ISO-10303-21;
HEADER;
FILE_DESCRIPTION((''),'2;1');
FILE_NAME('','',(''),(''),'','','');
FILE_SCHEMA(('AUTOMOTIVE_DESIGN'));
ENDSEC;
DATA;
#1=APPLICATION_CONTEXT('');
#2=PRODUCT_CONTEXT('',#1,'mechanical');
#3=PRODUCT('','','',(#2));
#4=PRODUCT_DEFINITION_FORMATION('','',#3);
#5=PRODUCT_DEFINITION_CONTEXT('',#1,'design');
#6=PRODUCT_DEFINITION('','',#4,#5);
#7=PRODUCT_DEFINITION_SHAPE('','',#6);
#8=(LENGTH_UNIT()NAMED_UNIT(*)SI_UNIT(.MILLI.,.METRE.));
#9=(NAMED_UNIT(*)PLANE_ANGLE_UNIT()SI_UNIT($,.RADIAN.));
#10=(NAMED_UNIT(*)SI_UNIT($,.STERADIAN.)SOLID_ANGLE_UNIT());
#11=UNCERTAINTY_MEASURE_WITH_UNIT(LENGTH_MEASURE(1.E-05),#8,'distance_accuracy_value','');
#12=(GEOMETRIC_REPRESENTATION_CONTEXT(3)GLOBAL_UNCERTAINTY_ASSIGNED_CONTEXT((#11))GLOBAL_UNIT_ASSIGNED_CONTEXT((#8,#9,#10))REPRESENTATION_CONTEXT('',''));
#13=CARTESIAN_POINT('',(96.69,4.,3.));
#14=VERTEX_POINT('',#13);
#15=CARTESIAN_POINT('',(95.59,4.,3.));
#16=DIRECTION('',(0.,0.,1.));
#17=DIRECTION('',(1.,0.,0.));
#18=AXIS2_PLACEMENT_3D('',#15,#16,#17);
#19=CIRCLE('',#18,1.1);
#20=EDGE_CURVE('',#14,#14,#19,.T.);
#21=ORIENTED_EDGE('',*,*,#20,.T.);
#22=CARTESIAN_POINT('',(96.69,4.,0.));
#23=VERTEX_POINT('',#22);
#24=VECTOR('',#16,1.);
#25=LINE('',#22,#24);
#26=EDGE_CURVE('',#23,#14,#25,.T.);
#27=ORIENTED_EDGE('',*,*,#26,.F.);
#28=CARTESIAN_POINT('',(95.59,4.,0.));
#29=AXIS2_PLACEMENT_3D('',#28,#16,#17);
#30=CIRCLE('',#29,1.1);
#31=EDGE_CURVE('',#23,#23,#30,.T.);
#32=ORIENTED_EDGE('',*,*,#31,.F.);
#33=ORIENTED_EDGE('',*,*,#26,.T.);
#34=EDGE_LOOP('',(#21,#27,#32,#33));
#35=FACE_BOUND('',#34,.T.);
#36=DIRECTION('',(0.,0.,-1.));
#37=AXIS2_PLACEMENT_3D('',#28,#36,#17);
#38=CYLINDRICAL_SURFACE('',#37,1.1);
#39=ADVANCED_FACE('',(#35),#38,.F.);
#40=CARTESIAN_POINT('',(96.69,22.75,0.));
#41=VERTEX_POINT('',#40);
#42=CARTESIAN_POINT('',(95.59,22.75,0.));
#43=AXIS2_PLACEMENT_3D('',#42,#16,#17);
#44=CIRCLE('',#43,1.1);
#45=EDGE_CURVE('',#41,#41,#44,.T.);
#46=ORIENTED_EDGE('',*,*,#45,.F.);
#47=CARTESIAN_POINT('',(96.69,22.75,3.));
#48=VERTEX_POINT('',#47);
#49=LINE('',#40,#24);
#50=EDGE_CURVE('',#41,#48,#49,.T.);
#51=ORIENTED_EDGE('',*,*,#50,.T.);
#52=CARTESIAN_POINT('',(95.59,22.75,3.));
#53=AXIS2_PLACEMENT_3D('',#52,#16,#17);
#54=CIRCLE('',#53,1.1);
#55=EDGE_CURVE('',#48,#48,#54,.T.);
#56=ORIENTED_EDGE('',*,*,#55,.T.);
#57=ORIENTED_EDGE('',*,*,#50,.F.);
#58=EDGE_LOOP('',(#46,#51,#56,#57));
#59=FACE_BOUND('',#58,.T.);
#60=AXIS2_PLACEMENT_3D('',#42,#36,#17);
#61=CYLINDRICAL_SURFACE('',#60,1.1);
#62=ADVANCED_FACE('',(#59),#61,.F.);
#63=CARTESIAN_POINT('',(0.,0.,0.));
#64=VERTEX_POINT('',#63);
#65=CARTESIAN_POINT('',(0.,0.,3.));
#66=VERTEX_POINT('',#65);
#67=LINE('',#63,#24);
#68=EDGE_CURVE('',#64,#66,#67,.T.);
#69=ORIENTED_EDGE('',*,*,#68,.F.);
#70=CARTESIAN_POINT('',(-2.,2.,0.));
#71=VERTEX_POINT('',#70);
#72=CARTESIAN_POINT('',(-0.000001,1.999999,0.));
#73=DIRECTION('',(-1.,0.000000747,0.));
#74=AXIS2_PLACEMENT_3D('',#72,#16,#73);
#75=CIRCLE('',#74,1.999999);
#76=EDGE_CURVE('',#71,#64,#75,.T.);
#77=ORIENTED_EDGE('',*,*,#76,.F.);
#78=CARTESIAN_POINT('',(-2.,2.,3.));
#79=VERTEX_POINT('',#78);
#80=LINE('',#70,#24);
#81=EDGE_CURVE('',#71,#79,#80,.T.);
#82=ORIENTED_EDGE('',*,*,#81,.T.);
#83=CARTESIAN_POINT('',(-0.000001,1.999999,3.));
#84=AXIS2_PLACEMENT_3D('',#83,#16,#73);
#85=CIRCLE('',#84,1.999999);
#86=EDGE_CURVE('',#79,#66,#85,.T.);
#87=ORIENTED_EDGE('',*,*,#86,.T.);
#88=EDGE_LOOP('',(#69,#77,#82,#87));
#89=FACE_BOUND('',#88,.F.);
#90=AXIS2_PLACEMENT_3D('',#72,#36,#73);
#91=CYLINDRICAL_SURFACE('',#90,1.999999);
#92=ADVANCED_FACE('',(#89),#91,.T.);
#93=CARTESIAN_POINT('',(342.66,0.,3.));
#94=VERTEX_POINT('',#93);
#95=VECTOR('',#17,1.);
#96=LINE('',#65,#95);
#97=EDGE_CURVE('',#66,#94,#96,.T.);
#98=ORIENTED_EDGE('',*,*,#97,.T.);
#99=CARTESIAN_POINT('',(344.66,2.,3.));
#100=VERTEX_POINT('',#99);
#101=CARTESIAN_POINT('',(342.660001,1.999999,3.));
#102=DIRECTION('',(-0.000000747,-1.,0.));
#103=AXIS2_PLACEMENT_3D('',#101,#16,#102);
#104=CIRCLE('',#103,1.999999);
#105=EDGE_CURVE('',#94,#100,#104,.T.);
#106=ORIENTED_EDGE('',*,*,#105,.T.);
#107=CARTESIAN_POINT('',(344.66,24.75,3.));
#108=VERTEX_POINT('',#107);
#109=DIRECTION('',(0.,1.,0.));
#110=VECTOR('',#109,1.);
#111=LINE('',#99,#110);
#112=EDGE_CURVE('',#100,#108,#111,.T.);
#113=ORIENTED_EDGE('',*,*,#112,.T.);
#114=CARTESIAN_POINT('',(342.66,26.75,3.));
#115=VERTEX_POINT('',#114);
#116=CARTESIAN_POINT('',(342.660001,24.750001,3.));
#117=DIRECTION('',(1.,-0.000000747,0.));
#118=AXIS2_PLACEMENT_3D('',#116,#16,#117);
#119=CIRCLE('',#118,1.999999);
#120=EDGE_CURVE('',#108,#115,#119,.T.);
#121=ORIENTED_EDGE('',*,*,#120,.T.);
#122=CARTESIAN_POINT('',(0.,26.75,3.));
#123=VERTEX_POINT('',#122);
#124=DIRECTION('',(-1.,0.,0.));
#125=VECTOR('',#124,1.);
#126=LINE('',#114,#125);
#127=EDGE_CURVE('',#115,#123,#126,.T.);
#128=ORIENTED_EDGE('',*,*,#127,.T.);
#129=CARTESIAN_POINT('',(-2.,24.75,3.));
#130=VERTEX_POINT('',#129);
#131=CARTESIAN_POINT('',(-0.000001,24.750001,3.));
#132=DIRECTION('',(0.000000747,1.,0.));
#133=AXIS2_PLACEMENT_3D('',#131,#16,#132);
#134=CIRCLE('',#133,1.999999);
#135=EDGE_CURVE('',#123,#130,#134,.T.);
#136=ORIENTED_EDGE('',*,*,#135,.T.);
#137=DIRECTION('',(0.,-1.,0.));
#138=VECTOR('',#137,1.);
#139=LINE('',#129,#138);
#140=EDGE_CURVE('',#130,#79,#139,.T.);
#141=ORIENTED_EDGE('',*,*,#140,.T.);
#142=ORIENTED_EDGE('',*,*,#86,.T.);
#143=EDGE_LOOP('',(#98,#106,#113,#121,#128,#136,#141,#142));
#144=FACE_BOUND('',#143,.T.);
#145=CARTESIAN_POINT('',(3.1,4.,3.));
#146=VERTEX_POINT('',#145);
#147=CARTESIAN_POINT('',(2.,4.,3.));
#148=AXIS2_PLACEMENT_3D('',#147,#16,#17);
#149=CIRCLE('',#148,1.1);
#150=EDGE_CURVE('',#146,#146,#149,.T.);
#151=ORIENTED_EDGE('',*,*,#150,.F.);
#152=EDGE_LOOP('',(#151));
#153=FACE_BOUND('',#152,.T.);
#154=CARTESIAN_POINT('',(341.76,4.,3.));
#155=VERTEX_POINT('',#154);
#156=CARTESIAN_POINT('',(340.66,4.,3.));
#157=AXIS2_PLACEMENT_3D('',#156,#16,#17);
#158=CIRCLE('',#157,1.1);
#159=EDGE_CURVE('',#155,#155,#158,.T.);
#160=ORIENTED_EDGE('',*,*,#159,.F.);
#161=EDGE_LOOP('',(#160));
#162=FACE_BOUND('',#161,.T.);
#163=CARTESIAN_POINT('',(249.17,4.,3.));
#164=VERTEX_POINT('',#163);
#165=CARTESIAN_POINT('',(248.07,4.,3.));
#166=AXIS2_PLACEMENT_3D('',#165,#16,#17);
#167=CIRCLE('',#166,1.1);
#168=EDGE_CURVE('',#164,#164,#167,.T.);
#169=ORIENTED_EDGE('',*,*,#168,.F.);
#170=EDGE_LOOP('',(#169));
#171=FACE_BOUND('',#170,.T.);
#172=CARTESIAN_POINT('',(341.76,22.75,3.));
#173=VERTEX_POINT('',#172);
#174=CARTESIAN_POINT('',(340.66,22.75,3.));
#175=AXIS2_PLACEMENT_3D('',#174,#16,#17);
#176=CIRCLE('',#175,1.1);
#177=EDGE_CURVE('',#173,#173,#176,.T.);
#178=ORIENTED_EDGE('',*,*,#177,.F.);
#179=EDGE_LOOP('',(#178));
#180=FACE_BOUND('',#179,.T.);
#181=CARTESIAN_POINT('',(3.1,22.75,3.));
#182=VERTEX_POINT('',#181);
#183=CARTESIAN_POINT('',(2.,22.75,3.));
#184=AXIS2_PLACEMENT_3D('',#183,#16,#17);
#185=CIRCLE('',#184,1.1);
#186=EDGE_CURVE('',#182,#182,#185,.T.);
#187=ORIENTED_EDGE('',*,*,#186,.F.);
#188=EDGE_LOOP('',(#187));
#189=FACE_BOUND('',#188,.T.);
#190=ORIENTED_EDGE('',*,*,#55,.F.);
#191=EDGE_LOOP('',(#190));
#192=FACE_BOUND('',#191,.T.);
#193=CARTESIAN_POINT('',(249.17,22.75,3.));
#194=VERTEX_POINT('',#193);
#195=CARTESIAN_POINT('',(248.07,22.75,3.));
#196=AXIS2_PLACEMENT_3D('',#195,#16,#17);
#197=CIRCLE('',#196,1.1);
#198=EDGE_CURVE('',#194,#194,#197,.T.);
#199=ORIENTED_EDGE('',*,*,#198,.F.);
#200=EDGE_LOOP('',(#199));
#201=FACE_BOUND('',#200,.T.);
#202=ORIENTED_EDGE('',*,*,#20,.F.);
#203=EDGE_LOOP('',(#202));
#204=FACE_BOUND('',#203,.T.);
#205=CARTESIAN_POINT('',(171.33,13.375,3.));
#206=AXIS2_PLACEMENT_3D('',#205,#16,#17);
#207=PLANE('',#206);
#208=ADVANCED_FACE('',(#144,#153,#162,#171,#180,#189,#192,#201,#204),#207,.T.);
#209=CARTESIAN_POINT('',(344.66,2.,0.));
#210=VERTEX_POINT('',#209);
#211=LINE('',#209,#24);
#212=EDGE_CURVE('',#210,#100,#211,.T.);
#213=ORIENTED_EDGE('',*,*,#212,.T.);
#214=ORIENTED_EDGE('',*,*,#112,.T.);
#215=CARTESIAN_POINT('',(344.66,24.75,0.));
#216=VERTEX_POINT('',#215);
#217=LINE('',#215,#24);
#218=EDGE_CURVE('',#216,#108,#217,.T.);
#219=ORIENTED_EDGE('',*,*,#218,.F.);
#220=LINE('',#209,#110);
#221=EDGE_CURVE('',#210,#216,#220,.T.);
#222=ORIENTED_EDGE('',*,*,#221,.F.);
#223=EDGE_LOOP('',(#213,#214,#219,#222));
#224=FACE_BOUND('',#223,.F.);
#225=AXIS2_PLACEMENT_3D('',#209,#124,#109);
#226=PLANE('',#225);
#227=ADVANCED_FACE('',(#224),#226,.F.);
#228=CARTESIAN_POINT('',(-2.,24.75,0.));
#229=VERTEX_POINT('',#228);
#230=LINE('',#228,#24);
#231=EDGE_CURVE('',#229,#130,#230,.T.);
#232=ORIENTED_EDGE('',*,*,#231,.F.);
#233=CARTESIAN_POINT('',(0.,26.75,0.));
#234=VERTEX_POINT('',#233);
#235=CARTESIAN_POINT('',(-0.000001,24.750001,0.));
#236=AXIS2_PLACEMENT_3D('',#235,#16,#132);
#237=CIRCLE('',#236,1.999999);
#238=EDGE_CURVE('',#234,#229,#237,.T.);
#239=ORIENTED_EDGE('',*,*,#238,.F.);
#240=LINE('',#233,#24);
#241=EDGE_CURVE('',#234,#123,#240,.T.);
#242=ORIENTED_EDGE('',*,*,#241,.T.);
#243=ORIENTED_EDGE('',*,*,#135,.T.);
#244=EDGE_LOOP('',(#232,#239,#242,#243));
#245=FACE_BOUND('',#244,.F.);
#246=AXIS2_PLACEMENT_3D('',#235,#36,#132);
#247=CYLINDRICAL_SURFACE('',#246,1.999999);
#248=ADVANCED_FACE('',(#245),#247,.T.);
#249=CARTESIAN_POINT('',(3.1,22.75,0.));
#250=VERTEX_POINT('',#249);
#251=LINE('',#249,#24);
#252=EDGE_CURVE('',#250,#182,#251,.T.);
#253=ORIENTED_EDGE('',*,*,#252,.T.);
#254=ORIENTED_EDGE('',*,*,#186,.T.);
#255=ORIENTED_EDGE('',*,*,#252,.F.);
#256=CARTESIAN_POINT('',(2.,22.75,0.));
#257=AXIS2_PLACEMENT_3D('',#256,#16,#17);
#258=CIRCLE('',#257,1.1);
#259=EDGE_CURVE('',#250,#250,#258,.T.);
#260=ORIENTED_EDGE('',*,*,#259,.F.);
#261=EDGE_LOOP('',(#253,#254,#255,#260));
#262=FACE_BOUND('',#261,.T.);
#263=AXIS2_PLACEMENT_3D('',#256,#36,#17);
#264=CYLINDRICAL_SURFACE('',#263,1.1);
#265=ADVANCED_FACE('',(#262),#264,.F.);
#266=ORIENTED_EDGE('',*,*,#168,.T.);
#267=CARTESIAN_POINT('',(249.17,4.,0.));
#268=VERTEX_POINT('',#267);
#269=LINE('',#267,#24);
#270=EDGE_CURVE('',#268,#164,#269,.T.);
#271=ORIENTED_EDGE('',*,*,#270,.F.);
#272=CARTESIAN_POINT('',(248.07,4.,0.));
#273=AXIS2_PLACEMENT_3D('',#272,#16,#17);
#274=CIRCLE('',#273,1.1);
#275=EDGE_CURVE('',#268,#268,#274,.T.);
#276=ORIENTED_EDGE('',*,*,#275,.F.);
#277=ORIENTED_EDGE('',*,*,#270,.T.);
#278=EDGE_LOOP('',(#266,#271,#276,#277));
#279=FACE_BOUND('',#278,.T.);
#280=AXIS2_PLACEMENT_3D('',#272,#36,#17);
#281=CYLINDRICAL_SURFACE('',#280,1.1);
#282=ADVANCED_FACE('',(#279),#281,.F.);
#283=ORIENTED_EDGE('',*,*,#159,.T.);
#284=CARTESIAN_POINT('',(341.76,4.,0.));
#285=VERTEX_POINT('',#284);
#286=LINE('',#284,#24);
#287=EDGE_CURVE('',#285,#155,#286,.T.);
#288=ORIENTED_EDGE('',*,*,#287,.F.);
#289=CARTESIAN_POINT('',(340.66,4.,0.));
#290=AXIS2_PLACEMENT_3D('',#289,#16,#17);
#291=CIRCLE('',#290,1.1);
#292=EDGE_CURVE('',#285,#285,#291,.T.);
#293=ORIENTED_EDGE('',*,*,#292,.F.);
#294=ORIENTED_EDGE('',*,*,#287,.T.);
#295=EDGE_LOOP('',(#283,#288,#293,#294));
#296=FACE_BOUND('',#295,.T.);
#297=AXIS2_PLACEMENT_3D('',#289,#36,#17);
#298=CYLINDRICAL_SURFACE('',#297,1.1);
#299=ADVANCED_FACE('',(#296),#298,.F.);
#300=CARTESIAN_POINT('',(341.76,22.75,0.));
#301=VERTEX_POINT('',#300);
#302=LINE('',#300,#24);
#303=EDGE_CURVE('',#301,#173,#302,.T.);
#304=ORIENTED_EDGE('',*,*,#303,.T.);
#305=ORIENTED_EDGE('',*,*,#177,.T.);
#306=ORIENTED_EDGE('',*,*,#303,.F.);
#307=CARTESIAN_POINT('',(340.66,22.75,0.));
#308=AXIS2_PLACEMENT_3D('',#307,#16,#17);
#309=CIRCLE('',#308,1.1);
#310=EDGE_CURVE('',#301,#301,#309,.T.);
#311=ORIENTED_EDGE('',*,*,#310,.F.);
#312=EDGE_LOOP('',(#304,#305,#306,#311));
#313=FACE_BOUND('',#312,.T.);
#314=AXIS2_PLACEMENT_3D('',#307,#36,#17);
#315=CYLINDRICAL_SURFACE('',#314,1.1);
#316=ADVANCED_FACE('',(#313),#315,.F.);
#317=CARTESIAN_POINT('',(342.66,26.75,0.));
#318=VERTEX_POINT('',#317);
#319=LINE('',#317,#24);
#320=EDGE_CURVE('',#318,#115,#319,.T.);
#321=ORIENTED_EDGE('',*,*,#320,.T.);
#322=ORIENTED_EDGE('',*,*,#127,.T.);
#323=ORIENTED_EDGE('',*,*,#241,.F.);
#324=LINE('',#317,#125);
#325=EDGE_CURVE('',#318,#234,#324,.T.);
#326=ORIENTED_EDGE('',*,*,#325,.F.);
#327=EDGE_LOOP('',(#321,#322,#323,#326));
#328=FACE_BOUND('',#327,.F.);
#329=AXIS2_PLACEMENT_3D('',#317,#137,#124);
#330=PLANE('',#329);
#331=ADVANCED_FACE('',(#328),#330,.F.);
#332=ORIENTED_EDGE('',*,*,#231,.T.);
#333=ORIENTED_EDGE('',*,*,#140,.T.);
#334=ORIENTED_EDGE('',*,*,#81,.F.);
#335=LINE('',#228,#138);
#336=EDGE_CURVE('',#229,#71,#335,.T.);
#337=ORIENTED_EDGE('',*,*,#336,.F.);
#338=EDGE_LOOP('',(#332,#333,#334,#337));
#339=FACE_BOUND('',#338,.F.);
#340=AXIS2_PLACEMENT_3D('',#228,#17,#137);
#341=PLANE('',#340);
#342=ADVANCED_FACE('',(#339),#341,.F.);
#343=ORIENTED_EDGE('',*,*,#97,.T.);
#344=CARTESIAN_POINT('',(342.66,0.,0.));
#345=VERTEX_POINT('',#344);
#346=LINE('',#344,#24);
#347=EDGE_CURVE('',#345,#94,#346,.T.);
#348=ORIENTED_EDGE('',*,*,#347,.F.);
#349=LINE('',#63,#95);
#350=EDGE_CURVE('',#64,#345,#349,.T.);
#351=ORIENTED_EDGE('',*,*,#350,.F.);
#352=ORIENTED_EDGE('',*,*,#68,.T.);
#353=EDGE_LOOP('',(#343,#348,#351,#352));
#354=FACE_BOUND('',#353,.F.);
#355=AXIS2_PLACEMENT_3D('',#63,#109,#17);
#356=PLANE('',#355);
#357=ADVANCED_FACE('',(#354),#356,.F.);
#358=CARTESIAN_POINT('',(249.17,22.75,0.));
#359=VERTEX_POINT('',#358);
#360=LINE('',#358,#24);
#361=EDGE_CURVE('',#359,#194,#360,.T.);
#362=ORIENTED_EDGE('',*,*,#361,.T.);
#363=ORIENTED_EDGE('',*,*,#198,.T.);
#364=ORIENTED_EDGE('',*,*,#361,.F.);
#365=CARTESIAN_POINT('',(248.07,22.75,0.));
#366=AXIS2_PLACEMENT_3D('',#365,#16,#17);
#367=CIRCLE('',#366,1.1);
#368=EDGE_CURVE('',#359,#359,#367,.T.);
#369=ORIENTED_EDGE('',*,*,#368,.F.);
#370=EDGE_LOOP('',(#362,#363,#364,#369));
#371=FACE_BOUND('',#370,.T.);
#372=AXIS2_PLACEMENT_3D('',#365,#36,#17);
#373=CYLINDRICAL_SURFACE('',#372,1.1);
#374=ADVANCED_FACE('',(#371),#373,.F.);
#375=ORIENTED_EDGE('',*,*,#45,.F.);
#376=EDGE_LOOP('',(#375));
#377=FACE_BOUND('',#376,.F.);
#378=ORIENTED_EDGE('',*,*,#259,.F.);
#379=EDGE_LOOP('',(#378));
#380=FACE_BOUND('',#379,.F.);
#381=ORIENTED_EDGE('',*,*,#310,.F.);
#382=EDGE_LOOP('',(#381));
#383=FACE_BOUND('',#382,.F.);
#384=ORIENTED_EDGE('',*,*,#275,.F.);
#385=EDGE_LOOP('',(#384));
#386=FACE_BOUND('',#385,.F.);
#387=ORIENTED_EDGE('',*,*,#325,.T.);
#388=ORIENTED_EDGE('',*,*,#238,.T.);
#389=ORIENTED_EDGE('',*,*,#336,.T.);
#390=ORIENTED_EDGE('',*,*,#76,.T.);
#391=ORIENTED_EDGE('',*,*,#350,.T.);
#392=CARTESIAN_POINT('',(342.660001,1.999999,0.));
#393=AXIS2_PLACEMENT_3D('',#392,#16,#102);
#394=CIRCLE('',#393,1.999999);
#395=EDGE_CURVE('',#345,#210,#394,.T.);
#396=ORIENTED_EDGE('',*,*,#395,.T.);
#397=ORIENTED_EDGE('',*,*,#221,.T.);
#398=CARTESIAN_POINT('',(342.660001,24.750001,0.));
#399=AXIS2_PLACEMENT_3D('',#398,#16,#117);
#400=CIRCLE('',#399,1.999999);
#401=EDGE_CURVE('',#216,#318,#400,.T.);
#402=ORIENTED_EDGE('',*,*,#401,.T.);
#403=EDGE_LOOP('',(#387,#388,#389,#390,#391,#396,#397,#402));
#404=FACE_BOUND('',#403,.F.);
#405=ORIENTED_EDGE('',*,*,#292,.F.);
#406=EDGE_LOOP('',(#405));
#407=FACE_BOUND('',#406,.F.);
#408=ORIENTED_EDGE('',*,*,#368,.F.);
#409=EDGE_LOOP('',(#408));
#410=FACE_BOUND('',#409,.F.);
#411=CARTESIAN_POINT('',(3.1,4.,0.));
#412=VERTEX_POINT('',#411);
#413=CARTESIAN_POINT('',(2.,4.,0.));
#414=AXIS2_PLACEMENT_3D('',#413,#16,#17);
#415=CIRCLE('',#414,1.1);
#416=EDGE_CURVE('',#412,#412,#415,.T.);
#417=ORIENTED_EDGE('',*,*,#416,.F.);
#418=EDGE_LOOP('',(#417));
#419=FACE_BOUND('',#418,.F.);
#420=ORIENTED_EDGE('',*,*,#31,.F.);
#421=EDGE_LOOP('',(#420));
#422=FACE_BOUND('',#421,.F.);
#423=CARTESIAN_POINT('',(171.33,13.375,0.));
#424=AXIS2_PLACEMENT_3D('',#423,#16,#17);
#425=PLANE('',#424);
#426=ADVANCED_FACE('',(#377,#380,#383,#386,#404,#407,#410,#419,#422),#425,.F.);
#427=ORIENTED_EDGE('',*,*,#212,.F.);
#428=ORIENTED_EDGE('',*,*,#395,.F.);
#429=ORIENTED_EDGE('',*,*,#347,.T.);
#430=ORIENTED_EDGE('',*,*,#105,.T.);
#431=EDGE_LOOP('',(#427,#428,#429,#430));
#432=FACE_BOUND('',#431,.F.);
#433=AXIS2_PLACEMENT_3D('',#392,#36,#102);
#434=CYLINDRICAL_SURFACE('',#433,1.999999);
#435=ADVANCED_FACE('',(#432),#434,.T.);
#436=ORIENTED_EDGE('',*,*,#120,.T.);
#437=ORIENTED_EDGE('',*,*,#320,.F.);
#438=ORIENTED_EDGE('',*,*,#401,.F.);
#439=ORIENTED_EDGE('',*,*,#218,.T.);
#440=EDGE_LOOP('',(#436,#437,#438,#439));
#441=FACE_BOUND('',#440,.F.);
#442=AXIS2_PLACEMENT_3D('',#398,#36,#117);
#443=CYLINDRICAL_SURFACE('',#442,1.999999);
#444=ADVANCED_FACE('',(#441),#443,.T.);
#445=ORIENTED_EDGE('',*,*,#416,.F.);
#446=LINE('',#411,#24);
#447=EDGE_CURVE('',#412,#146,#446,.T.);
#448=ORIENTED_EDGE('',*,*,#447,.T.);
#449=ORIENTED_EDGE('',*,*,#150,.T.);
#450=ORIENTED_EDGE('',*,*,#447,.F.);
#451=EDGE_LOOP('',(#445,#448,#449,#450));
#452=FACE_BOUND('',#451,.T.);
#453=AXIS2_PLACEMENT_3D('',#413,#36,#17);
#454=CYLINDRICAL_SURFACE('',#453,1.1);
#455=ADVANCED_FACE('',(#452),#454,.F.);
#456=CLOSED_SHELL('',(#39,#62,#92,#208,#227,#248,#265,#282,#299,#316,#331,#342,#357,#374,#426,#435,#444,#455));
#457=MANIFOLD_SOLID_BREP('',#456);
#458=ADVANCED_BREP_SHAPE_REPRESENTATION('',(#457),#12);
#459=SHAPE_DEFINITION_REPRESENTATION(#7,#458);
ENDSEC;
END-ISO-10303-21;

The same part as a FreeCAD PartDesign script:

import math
import FreeCAD as App
import Part
import Sketcher

doc = App.newDocument("Part")
params = doc.addObject("Spreadsheet::Sheet", "Params")
for row, (alias, value) in enumerate([
    ("sketch1_radius", "1.999999 mm"),
    ("sketch1_diameter", "2.2 mm"),
    ("sketch1_width", "342.66 mm"),
    ("sketch1_height", "22.75 mm"),
    ("pad1_length", "3 mm"),
], start=1):
    params.set(f"A{row}", alias)
    params.set(f"B{row}", "=" + value)
    params.setAlias(f"B{row}", alias)

body = doc.addObject("PartDesign::Body", "Body")

sketch1 = doc.addObject("Sketcher::SketchObject", "Sketch")
body.addObject(sketch1)
sketch1.AttachmentSupport = (doc.XY_Plane, [""])
sketch1.MapMode = "FlatFace"
sketch1.addGeometry([
    Part.LineSegment(App.Vector(0, 0, 0), App.Vector(342.7, 0, 0)),
    Part.ArcOfCircle(Part.Circle(App.Vector(342.7, 2, 0), App.Vector(0, 0, 1), 2), math.radians(-90), math.radians(0)),
    Part.LineSegment(App.Vector(344.7, 2, 0), App.Vector(344.7, 24.8, 0)),
    Part.ArcOfCircle(Part.Circle(App.Vector(342.7, 24.8, 0), App.Vector(0, 0, 1), 2), math.radians(0), math.radians(90)),
    Part.LineSegment(App.Vector(342.7, 26.8, 0), App.Vector(0, 26.8, 0)),
    Part.ArcOfCircle(Part.Circle(App.Vector(0, 24.8, 0), App.Vector(0, 0, 1), 2), math.radians(90), math.radians(180)),
    Part.LineSegment(App.Vector(-2, 24.8, 0), App.Vector(-2, 2, 0)),
    Part.ArcOfCircle(Part.Circle(App.Vector(0, 2, 0), App.Vector(0, 0, 1), 2), math.radians(180), math.radians(270)),
    Part.Circle(App.Vector(2, 4, 0), App.Vector(0, 0, 1), 1.1),
    Part.Circle(App.Vector(95.6, 4, 0), App.Vector(0, 0, 1), 1.1),
    Part.Circle(App.Vector(248.1, 4, 0), App.Vector(0, 0, 1), 1.1),
    Part.Circle(App.Vector(340.7, 4, 0), App.Vector(0, 0, 1), 1.1),
    Part.Circle(App.Vector(2, 22.8, 0), App.Vector(0, 0, 1), 1.1),
    Part.Circle(App.Vector(95.6, 22.8, 0), App.Vector(0, 0, 1), 1.1),
    Part.Circle(App.Vector(248.1, 22.8, 0), App.Vector(0, 0, 1), 1.1),
    Part.Circle(App.Vector(340.7, 22.8, 0), App.Vector(0, 0, 1), 1.1),
], False)
sketch1.addConstraint([
    Sketcher.Constraint("Tangent", 0, 2, 1, 1),
    Sketcher.Constraint("Tangent", 1, 2, 2, 1),
    Sketcher.Constraint("Tangent", 2, 2, 3, 1),
    Sketcher.Constraint("Tangent", 3, 2, 4, 1),
    Sketcher.Constraint("Tangent", 4, 2, 5, 1),
    Sketcher.Constraint("Tangent", 5, 2, 6, 1),
    Sketcher.Constraint("Tangent", 6, 2, 7, 1),
    Sketcher.Constraint("Tangent", 7, 2, 0, 1),
    Sketcher.Constraint("Horizontal", 0),
    Sketcher.Constraint("Vertical", 2),
    Sketcher.Constraint("Horizontal", 4),
    Sketcher.Constraint("Vertical", 6),
    Sketcher.Constraint("Coincident", 7, 2, -1, 1),
    Sketcher.Constraint("Equal", 1, 3),
    Sketcher.Constraint("Equal", 3, 5),
    Sketcher.Constraint("Equal", 5, 7),
    Sketcher.Constraint("Equal", 8, 9),
    Sketcher.Constraint("Equal", 9, 10),
    Sketcher.Constraint("Equal", 10, 11),
    Sketcher.Constraint("Equal", 11, 12),
    Sketcher.Constraint("Equal", 12, 13),
    Sketcher.Constraint("Equal", 13, 14),
    Sketcher.Constraint("Equal", 14, 15),
    Sketcher.Constraint("Horizontal", 8, 3, 9, 3),
    Sketcher.Constraint("Horizontal", 9, 3, 10, 3),
    Sketcher.Constraint("Horizontal", 10, 3, 11, 3),
    Sketcher.Constraint("Horizontal", 12, 3, 13, 3),
    Sketcher.Constraint("Horizontal", 13, 3, 14, 3),
    Sketcher.Constraint("Horizontal", 14, 3, 15, 3),
    Sketcher.Constraint("Vertical", 8, 3, 12, 3),
    Sketcher.Constraint("Vertical", 9, 3, 13, 3),
    Sketcher.Constraint("Vertical", 10, 3, 14, 3),
    Sketcher.Constraint("Vertical", 11, 3, 15, 3),
    Sketcher.Constraint("Radius", 1, 1.999999),
    Sketcher.Constraint("Diameter", 8, 2.2),
    Sketcher.Constraint("DistanceX", -1, 1, 8, 3, 2.0),
    Sketcher.Constraint("DistanceY", -1, 1, 8, 3, 4.0),
    Sketcher.Constraint("DistanceX", 11, 3, 1, 3, 2.000001),
    Sketcher.Constraint("DistanceY", 12, 3, 5, 3, 2.000001),
    Sketcher.Constraint("DistanceX", 0, 1, 0, 2, 342.66),
    Sketcher.Constraint("DistanceY", 2, 1, 2, 2, 22.75),
    Sketcher.Constraint("DistanceX", -1, 1, 9, 3, 95.59),
    Sketcher.Constraint("DistanceX", -1, 1, 10, 3, 248.07),
])
sketch1.setExpression("Constraints[33]", "Params.sketch1_radius")
sketch1.setExpression("Constraints[34]", "Params.sketch1_diameter")
sketch1.setExpression("Constraints[39]", "Params.sketch1_width")
sketch1.setExpression("Constraints[40]", "Params.sketch1_height")
pad1 = doc.addObject("PartDesign::Pad", "Pad")
body.addObject(pad1)
pad1.Profile = sketch1
pad1.setExpression("Length", "Params.pad1_length")

doc.recompute()
